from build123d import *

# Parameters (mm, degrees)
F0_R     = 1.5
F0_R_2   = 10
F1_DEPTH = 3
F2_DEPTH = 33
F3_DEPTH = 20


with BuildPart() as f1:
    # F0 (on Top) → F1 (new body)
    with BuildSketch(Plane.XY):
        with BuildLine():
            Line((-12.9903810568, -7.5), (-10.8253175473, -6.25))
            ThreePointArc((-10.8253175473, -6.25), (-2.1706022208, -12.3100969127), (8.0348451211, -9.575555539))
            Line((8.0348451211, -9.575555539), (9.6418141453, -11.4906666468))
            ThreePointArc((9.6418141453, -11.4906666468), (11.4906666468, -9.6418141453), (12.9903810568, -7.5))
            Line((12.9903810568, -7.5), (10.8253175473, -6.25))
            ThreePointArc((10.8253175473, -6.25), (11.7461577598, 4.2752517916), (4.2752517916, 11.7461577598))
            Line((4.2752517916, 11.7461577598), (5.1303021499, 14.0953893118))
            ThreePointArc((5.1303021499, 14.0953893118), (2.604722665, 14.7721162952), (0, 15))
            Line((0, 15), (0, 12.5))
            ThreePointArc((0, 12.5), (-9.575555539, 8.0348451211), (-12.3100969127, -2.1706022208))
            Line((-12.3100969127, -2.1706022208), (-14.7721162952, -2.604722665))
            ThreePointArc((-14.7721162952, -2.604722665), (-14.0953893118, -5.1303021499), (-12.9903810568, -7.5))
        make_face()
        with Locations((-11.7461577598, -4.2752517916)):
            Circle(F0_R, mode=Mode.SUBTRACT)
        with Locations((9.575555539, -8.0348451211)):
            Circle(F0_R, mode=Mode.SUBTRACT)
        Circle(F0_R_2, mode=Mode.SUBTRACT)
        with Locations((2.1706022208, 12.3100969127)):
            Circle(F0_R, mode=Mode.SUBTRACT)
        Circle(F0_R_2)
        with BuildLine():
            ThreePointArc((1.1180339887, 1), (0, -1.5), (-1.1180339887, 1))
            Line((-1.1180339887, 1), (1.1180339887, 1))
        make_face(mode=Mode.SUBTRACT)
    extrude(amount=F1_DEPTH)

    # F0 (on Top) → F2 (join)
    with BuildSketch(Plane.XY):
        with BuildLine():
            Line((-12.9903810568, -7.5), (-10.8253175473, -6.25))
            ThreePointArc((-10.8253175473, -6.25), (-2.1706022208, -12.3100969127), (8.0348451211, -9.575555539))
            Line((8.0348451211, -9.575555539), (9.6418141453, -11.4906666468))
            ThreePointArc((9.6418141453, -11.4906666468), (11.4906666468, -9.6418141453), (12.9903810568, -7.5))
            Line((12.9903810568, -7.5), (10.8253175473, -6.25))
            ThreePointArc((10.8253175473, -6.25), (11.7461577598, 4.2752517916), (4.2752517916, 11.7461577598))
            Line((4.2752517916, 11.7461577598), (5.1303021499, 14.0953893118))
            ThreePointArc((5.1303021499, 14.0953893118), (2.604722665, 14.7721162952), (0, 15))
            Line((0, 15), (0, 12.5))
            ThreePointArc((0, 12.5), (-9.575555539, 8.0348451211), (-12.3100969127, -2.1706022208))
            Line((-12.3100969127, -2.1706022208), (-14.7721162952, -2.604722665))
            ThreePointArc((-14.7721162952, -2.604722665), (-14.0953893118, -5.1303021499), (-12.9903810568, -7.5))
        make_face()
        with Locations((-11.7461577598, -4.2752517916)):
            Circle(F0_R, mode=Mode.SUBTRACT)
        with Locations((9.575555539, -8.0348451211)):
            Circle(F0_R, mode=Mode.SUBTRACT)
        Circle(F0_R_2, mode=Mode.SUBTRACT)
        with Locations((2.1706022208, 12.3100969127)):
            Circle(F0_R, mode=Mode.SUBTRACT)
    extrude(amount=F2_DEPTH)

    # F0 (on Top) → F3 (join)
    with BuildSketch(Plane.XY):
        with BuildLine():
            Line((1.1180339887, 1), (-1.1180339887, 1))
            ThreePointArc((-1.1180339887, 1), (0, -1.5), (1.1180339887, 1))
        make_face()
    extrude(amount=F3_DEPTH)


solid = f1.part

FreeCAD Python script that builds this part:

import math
import FreeCAD as App
import Part
import Sketcher
Q = App.Units.Quantity

doc = App.newDocument("Part")
params = doc.addObject("Spreadsheet::Sheet", "Params")
for row, (alias, value) in enumerate([
    ("sketch1_diameter", "3 mm"),
    ("sketch1_radius", "15 mm"),
    ("sketch1_radius2", "12.5 mm"),
    ("pad1_length", "3 mm"),
    ("sketch2_diameter", "3 mm"),
    ("sketch2_diameter2", "20 mm"),
    ("sketch2_radius", "15 mm"),
    ("sketch2_radius2", "12.5 mm"),
    ("pad2_length", "33 mm"),
    ("sketch3_radius", "1.5 mm"),
    ("pad3_length", "20 mm"),
], start=1):
    params.set(f"A{row}", alias)
    params.set(f"B{row}", "=" + value)
    params.setAlias(f"B{row}", alias)

body = doc.addObject("PartDesign::Body", "Body")

# Sketch on XY plane
sketch1 = body.newObject("Sketcher::SketchObject", "Sketch")
sketch1.AttachmentSupport = (doc.getObject("XY_Plane"), [""])
sketch1.MapMode = "FlatFace"
sketch1.addGeometry([
    Part.LineSegment(App.Vector(-12.990381, -7.5, 0), App.Vector(-10.825318, -6.25, 0)),  # 0
    Part.ArcOfCircle(Part.Circle(App.Vector(0, 0, 0), App.Vector(0, 0, 1), 12.5), math.radians(-150), math.radians(-50)),  # 1
    Part.LineSegment(App.Vector(8.034845, -9.575556, 0), App.Vector(9.641814, -11.490667, 0)),  # 2
    Part.ArcOfCircle(Part.Circle(App.Vector(0, 0, 0), App.Vector(0, 0, 1), 15), math.radians(-50), math.radians(-30)),  # 3
    Part.LineSegment(App.Vector(12.990381, -7.5, 0), App.Vector(10.825318, -6.25, 0)),  # 4
    Part.ArcOfCircle(Part.Circle(App.Vector(0, 0, 0), App.Vector(0, 0, 1), 12.5), math.radians(-30), math.radians(70)),  # 5
    Part.LineSegment(App.Vector(4.275252, 11.746158, 0), App.Vector(5.130302, 14.095389, 0)),  # 6
    Part.ArcOfCircle(Part.Circle(App.Vector(0, 0, 0), App.Vector(0, 0, 1), 15), math.radians(70), math.radians(90)),  # 7
    Part.LineSegment(App.Vector(0, 15, 0), App.Vector(0, 12.5, 0)),  # 8
    Part.ArcOfCircle(Part.Circle(App.Vector(0, 0, 0), App.Vector(0, 0, 1), 12.5), math.radians(90), math.radians(190)),  # 9
    Part.LineSegment(App.Vector(-12.310097, -2.170602, 0), App.Vector(-14.772116, -2.604723, 0)),  # 10
    Part.ArcOfCircle(Part.Circle(App.Vector(0, 0, 0), App.Vector(0, 0, 1), 15), math.radians(-170), math.radians(-150)),  # 11
    Part.Circle(App.Vector(-11.746158, -4.275252, 0), App.Vector(0, 0, 1), 1.5),  # 12
    Part.Circle(App.Vector(9.575556, -8.034845, 0), App.Vector(0, 0, 1), 1.5),  # 13
    Part.LineSegment(App.Vector(-1.118034, 1, 0), App.Vector(1.118034, 1, 0)),  # 14
    Part.ArcOfCircle(Part.Circle(App.Vector(0, 0, 0), App.Vector(0, 0, 1), 1.5), math.radians(138.189685), math.radians(401.810315)),  # 15
    Part.Circle(App.Vector(2.170602, 12.310097, 0), App.Vector(0, 0, 1), 1.5),  # 16
], False)
sketch1.addConstraint([
    Sketcher.Constraint("Coincident", 0, 2, 1, 1),
    Sketcher.Constraint("Coincident", 1, 2, 2, 1),
    Sketcher.Constraint("Coincident", 2, 2, 3, 1),
    Sketcher.Constraint("Coincident", 3, 2, 4, 1),
    Sketcher.Constraint("Coincident", 4, 2, 5, 1),
    Sketcher.Constraint("Coincident", 5, 2, 6, 1),
    Sketcher.Constraint("Coincident", 6, 2, 7, 1),
    Sketcher.Constraint("Coincident", 7, 2, 8, 1),
    Sketcher.Constraint("Coincident", 8, 2, 9, 1),
    Sketcher.Constraint("Coincident", 9, 2, 10, 1),
    Sketcher.Constraint("Coincident", 10, 2, 11, 1),
    Sketcher.Constraint("Coincident", 11, 2, 0, 1),
    Sketcher.Constraint("Coincident", 14, 1, 15, 1),
    Sketcher.Constraint("Coincident", 15, 2, 14, 2),
    Sketcher.Constraint("Vertical", 8),
    Sketcher.Constraint("Horizontal", 14),
    Sketcher.Constraint("Coincident", 1, 3, -1, 1),
    Sketcher.Constraint("Coincident", 3, 3, -1, 1),
    Sketcher.Constraint("Coincident", 5, 3, -1, 1),
    Sketcher.Constraint("Coincident", 7, 3, -1, 1),
    Sketcher.Constraint("Coincident", 9, 3, -1, 1),
    Sketcher.Constraint("Coincident", 11, 3, -1, 1),
    Sketcher.Constraint("Coincident", 15, 3, -1, 1),
    Sketcher.Constraint("Equal", 1, 5),
    Sketcher.Constraint("Equal", 3, 7),
    Sketcher.Constraint("Equal", 5, 9),
    Sketcher.Constraint("Equal", 7, 11),
    Sketcher.Constraint("Equal", 12, 13),
    Sketcher.Constraint("Equal", 13, 15),
    Sketcher.Constraint("Equal", 15, 16),
    Sketcher.Constraint("PointOnObject", 7, 2, -2),
    Sketcher.Constraint("Horizontal", 0, 2, 4, 2),
    Sketcher.Constraint("Horizontal", 3, 2, 11, 2),
    Sketcher.Constraint("Diameter", 12, 3.0),
    Sketcher.Constraint("Radius", 3, 15.0),
    Sketcher.Constraint("Radius", 1, 12.5),
    Sketcher.Constraint("Angle", 0, Q("30 deg")),
    Sketcher.Constraint("Angle", 2, Q("-50 deg")),
    Sketcher.Constraint("Angle", 6, Q("70 deg")),
    Sketcher.Constraint("Angle", 10, Q("-170 deg")),
    Sketcher.Constraint("DistanceY", -1, 1, 14, 1, 1.0),
    Sketcher.Constraint("DistanceY", 3, 2, -1, 1, 7.5),
    Sketcher.Constraint("DistanceX", 16, 3, 6, 2, 2.9597),
    Sketcher.Constraint("DistanceX", 10, 2, 0, 2, 3.946799),
    Sketcher.Constraint("DistanceY", 12, 3, -1, 1, 4.275252),
    Sketcher.Constraint("DistanceX", -1, 1, 5, 2, 4.275252),
    Sketcher.Constraint("DistanceX", 12, 3, 0, 2, 0.92084),
    Sketcher.Constraint("DistanceX", 1, 2, 13, 3, 1.54071),
    Sketcher.Constraint("DistanceY", 1, 2, 13, 3, 1.54071),
    Sketcher.Constraint("DistanceY", 5, 2, 16, 3, 0.563939),
    Sketcher.Constraint("DistanceX", -1, 1, 13, 3, 9.575556),
])
sketch1.setExpression("Constraints[33]", "Params.sketch1_diameter")
sketch1.setExpression("Constraints[34]", "Params.sketch1_radius")
sketch1.setExpression("Constraints[35]", "Params.sketch1_radius2")
pad1 = body.newObject("PartDesign::Pad", "Pad")
pad1.Profile = sketch1
pad1.setExpression("Length", "Params.pad1_length")

# Sketch on XY plane
sketch2 = body.newObject("Sketcher::SketchObject", "Sketch001")
sketch2.AttachmentSupport = (doc.getObject("XY_Plane"), [""])
sketch2.MapMode = "FlatFace"
sketch2.addGeometry([
    Part.LineSegment(App.Vector(-12.990381, -7.5, 0), App.Vector(-10.825318, -6.25, 0)),  # 0
    Part.ArcOfCircle(Part.Circle(App.Vector(0, 0, 0), App.Vector(0, 0, 1), 12.5), math.radians(-150), math.radians(-50)),  # 1
    Part.LineSegment(App.Vector(8.034845, -9.575556, 0), App.Vector(9.641814, -11.490667, 0)),  # 2
    Part.ArcOfCircle(Part.Circle(App.Vector(0, 0, 0), App.Vector(0, 0, 1), 15), math.radians(-50), math.radians(-30)),  # 3
    Part.LineSegment(App.Vector(12.990381, -7.5, 0), App.Vector(10.825318, -6.25, 0)),  # 4
    Part.ArcOfCircle(Part.Circle(App.Vector(0, 0, 0), App.Vector(0, 0, 1), 12.5), math.radians(-30), math.radians(70)),  # 5
    Part.LineSegment(App.Vector(4.275252, 11.746158, 0), App.Vector(5.130302, 14.095389, 0)),  # 6
    Part.ArcOfCircle(Part.Circle(App.Vector(0, 0, 0), App.Vector(0, 0, 1), 15), math.radians(70), math.radians(90)),  # 7
    Part.LineSegment(App.Vector(0, 15, 0), App.Vector(0, 12.5, 0)),  # 8
    Part.ArcOfCircle(Part.Circle(App.Vector(0, 0, 0), App.Vector(0, 0, 1), 12.5), math.radians(90), math.radians(190)),  # 9
    Part.LineSegment(App.Vector(-12.310097, -2.170602, 0), App.Vector(-14.772116, -2.604723, 0)),  # 10
    Part.ArcOfCircle(Part.Circle(App.Vector(0, 0, 0), App.Vector(0, 0, 1), 15), math.radians(-170), math.radians(-150)),  # 11
    Part.Circle(App.Vector(-11.746158, -4.275252, 0), App.Vector(0, 0, 1), 1.5),  # 12
    Part.Circle(App.Vector(9.575556, -8.034845, 0), App.Vector(0, 0, 1), 1.5),  # 13
    Part.Circle(App.Vector(0, 0, 0), App.Vector(0, 0, 1), 10),  # 14
    Part.Circle(App.Vector(2.170602, 12.310097, 0), App.Vector(0, 0, 1), 1.5),  # 15
], False)
sketch2.addConstraint([
    Sketcher.Constraint("Coincident", 0, 2, 1, 1),
    Sketcher.Constraint("Coincident", 1, 2, 2, 1),
    Sketcher.Constraint("Coincident", 2, 2, 3, 1),
    Sketcher.Constraint("Coincident", 3, 2, 4, 1),
    Sketcher.Constraint("Coincident", 4, 2, 5, 1),
    Sketcher.Constraint("Coincident", 5, 2, 6, 1),
    Sketcher.Constraint("Coincident", 6, 2, 7, 1),
    Sketcher.Constraint("Coincident", 7, 2, 8, 1),
    Sketcher.Constraint("Coincident", 8, 2, 9, 1),
    Sketcher.Constraint("Coincident", 9, 2, 10, 1),
    Sketcher.Constraint("Coincident", 10, 2, 11, 1),
    Sketcher.Constraint("Coincident", 11, 2, 0, 1),
    Sketcher.Constraint("Vertical", 8),
    Sketcher.Constraint("Coincident", 1, 3, -1, 1),
    Sketcher.Constraint("Coincident", 3, 3, -1, 1),
    Sketcher.Constraint("Coincident", 5, 3, -1, 1),
    Sketcher.Constraint("Coincident", 7, 3, -1, 1),
    Sketcher.Constraint("Coincident", 9, 3, -1, 1),
    Sketcher.Constraint("Coincident", 11, 3, -1, 1),
    Sketcher.Constraint("Coincident", 14, 3, -1, 1),
    Sketcher.Constraint("Equal", 1, 5),
    Sketcher.Constraint("Equal", 3, 7),
    Sketcher.Constraint("Equal", 5, 9),
    Sketcher.Constraint("Equal", 7, 11),
    Sketcher.Constraint("Equal", 12, 13),
    Sketcher.Constraint("Equal", 13, 15),
    Sketcher.Constraint("PointOnObject", 7, 2, -2),
    Sketcher.Constraint("Horizontal", 0, 2, 4, 2),
    Sketcher.Constraint("Horizontal", 3, 2, 11, 2),
    Sketcher.Constraint("Diameter", 12, 3.0),
    Sketcher.Constraint("Diameter", 14, 20.0),
    Sketcher.Constraint("Radius", 3, 15.0),
    Sketcher.Constraint("Radius", 1, 12.5),
    Sketcher.Constraint("Angle", 0, Q("30 deg")),
    Sketcher.Constraint("Angle", 2, Q("-50 deg")),
    Sketcher.Constraint("Angle", 6, Q("70 deg")),
    Sketcher.Constraint("Angle", 10, Q("-170 deg")),
    Sketcher.Constraint("DistanceY", 3, 2, -1, 1, 7.5),
    Sketcher.Constraint("DistanceX", 15, 3, 6, 2, 2.9597),
    Sketcher.Constraint("DistanceX", 10, 2, 0, 2, 3.946799),
    Sketcher.Constraint("DistanceY", 12, 3, -1, 1, 4.275252),
    Sketcher.Constraint("DistanceX", -1, 1, 5, 2, 4.275252),
    Sketcher.Constraint("DistanceX", 12, 3, 0, 2, 0.92084),
    Sketcher.Constraint("DistanceX", 1, 2, 13, 3, 1.54071),
    Sketcher.Constraint("DistanceY", 1, 2, 13, 3, 1.54071),
    Sketcher.Constraint("DistanceY", 5, 2, 15, 3, 0.563939),
    Sketcher.Constraint("DistanceX", -1, 1, 13, 3, 9.575556),
])
sketch2.setExpression("Constraints[29]", "Params.sketch2_diameter")
sketch2.setExpression("Constraints[30]", "Params.sketch2_diameter2")
sketch2.setExpression("Constraints[31]", "Params.sketch2_radius")
sketch2.setExpression("Constraints[32]", "Params.sketch2_radius2")
pad2 = body.newObject("PartDesign::Pad", "Pad001")
pad2.Profile = sketch2
pad2.setExpression("Length", "Params.pad2_length")

# Sketch on XY plane
sketch3 = body.newObject("Sketcher::SketchObject", "Sketch002")
sketch3.AttachmentSupport = (doc.getObject("XY_Plane"), [""])
sketch3.MapMode = "FlatFace"
sketch3.addGeometry([
    Part.LineSegment(App.Vector(1.118034, 1, 0), App.Vector(-1.118034, 1, 0)),
    Part.ArcOfCircle(Part.Circle(App.Vector(0, 0, 0), App.Vector(0, 0, 1), 1.5), math.radians(138.189685), math.radians(401.810315)),
], False)
sketch3.addConstraint([
    Sketcher.Constraint("Coincident", 0, 1, 1, 2),
    Sketcher.Constraint("Coincident", 1, 1, 0, 2),
    Sketcher.Constraint("Horizontal", 0),
    Sketcher.Constraint("Coincident", 1, 3, -1, 1),
    Sketcher.Constraint("Radius", 1, 1.5),
    Sketcher.Constraint("DistanceY", -1, 1, 0, 1, 1.0),
])
sketch3.setExpression("Constraints[4]", "Params.sketch3_radius")
pad3 = body.newObject("PartDesign::Pad", "Pad002")
pad3.Profile = sketch3
pad3.setExpression("Length", "Params.pad3_length")

doc.recompute()
